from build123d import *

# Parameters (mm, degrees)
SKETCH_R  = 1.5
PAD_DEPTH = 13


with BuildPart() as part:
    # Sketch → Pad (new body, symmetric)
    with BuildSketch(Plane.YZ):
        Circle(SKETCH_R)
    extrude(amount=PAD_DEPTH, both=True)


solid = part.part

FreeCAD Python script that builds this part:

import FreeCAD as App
import Part
import Sketcher

V = App.Vector

doc = App.newDocument("Part")
body = doc.addObject("PartDesign::Body", "Body")

# Sketch on YZ plane
sketch1 = body.newObject("Sketcher::SketchObject", "Sketch")
sketch1.AttachmentSupport = (doc.getObject("YZ_Plane"), [""])
sketch1.MapMode = "FlatFace"
sketch1.addGeometry(Part.Circle(V(0, 0, 0), V(0, 0, 1), 1.5), False)
sketch1.addConstraint([
    Sketcher.Constraint("Coincident", 0, 3, -1, 1),
    Sketcher.Constraint("Diameter", 0, 3.0),
])
pad1 = body.newObject("PartDesign::Pad", "Pad")
pad1.Profile = sketch1
pad1.Length = 26
pad1.Midplane = True

doc.recompute()
